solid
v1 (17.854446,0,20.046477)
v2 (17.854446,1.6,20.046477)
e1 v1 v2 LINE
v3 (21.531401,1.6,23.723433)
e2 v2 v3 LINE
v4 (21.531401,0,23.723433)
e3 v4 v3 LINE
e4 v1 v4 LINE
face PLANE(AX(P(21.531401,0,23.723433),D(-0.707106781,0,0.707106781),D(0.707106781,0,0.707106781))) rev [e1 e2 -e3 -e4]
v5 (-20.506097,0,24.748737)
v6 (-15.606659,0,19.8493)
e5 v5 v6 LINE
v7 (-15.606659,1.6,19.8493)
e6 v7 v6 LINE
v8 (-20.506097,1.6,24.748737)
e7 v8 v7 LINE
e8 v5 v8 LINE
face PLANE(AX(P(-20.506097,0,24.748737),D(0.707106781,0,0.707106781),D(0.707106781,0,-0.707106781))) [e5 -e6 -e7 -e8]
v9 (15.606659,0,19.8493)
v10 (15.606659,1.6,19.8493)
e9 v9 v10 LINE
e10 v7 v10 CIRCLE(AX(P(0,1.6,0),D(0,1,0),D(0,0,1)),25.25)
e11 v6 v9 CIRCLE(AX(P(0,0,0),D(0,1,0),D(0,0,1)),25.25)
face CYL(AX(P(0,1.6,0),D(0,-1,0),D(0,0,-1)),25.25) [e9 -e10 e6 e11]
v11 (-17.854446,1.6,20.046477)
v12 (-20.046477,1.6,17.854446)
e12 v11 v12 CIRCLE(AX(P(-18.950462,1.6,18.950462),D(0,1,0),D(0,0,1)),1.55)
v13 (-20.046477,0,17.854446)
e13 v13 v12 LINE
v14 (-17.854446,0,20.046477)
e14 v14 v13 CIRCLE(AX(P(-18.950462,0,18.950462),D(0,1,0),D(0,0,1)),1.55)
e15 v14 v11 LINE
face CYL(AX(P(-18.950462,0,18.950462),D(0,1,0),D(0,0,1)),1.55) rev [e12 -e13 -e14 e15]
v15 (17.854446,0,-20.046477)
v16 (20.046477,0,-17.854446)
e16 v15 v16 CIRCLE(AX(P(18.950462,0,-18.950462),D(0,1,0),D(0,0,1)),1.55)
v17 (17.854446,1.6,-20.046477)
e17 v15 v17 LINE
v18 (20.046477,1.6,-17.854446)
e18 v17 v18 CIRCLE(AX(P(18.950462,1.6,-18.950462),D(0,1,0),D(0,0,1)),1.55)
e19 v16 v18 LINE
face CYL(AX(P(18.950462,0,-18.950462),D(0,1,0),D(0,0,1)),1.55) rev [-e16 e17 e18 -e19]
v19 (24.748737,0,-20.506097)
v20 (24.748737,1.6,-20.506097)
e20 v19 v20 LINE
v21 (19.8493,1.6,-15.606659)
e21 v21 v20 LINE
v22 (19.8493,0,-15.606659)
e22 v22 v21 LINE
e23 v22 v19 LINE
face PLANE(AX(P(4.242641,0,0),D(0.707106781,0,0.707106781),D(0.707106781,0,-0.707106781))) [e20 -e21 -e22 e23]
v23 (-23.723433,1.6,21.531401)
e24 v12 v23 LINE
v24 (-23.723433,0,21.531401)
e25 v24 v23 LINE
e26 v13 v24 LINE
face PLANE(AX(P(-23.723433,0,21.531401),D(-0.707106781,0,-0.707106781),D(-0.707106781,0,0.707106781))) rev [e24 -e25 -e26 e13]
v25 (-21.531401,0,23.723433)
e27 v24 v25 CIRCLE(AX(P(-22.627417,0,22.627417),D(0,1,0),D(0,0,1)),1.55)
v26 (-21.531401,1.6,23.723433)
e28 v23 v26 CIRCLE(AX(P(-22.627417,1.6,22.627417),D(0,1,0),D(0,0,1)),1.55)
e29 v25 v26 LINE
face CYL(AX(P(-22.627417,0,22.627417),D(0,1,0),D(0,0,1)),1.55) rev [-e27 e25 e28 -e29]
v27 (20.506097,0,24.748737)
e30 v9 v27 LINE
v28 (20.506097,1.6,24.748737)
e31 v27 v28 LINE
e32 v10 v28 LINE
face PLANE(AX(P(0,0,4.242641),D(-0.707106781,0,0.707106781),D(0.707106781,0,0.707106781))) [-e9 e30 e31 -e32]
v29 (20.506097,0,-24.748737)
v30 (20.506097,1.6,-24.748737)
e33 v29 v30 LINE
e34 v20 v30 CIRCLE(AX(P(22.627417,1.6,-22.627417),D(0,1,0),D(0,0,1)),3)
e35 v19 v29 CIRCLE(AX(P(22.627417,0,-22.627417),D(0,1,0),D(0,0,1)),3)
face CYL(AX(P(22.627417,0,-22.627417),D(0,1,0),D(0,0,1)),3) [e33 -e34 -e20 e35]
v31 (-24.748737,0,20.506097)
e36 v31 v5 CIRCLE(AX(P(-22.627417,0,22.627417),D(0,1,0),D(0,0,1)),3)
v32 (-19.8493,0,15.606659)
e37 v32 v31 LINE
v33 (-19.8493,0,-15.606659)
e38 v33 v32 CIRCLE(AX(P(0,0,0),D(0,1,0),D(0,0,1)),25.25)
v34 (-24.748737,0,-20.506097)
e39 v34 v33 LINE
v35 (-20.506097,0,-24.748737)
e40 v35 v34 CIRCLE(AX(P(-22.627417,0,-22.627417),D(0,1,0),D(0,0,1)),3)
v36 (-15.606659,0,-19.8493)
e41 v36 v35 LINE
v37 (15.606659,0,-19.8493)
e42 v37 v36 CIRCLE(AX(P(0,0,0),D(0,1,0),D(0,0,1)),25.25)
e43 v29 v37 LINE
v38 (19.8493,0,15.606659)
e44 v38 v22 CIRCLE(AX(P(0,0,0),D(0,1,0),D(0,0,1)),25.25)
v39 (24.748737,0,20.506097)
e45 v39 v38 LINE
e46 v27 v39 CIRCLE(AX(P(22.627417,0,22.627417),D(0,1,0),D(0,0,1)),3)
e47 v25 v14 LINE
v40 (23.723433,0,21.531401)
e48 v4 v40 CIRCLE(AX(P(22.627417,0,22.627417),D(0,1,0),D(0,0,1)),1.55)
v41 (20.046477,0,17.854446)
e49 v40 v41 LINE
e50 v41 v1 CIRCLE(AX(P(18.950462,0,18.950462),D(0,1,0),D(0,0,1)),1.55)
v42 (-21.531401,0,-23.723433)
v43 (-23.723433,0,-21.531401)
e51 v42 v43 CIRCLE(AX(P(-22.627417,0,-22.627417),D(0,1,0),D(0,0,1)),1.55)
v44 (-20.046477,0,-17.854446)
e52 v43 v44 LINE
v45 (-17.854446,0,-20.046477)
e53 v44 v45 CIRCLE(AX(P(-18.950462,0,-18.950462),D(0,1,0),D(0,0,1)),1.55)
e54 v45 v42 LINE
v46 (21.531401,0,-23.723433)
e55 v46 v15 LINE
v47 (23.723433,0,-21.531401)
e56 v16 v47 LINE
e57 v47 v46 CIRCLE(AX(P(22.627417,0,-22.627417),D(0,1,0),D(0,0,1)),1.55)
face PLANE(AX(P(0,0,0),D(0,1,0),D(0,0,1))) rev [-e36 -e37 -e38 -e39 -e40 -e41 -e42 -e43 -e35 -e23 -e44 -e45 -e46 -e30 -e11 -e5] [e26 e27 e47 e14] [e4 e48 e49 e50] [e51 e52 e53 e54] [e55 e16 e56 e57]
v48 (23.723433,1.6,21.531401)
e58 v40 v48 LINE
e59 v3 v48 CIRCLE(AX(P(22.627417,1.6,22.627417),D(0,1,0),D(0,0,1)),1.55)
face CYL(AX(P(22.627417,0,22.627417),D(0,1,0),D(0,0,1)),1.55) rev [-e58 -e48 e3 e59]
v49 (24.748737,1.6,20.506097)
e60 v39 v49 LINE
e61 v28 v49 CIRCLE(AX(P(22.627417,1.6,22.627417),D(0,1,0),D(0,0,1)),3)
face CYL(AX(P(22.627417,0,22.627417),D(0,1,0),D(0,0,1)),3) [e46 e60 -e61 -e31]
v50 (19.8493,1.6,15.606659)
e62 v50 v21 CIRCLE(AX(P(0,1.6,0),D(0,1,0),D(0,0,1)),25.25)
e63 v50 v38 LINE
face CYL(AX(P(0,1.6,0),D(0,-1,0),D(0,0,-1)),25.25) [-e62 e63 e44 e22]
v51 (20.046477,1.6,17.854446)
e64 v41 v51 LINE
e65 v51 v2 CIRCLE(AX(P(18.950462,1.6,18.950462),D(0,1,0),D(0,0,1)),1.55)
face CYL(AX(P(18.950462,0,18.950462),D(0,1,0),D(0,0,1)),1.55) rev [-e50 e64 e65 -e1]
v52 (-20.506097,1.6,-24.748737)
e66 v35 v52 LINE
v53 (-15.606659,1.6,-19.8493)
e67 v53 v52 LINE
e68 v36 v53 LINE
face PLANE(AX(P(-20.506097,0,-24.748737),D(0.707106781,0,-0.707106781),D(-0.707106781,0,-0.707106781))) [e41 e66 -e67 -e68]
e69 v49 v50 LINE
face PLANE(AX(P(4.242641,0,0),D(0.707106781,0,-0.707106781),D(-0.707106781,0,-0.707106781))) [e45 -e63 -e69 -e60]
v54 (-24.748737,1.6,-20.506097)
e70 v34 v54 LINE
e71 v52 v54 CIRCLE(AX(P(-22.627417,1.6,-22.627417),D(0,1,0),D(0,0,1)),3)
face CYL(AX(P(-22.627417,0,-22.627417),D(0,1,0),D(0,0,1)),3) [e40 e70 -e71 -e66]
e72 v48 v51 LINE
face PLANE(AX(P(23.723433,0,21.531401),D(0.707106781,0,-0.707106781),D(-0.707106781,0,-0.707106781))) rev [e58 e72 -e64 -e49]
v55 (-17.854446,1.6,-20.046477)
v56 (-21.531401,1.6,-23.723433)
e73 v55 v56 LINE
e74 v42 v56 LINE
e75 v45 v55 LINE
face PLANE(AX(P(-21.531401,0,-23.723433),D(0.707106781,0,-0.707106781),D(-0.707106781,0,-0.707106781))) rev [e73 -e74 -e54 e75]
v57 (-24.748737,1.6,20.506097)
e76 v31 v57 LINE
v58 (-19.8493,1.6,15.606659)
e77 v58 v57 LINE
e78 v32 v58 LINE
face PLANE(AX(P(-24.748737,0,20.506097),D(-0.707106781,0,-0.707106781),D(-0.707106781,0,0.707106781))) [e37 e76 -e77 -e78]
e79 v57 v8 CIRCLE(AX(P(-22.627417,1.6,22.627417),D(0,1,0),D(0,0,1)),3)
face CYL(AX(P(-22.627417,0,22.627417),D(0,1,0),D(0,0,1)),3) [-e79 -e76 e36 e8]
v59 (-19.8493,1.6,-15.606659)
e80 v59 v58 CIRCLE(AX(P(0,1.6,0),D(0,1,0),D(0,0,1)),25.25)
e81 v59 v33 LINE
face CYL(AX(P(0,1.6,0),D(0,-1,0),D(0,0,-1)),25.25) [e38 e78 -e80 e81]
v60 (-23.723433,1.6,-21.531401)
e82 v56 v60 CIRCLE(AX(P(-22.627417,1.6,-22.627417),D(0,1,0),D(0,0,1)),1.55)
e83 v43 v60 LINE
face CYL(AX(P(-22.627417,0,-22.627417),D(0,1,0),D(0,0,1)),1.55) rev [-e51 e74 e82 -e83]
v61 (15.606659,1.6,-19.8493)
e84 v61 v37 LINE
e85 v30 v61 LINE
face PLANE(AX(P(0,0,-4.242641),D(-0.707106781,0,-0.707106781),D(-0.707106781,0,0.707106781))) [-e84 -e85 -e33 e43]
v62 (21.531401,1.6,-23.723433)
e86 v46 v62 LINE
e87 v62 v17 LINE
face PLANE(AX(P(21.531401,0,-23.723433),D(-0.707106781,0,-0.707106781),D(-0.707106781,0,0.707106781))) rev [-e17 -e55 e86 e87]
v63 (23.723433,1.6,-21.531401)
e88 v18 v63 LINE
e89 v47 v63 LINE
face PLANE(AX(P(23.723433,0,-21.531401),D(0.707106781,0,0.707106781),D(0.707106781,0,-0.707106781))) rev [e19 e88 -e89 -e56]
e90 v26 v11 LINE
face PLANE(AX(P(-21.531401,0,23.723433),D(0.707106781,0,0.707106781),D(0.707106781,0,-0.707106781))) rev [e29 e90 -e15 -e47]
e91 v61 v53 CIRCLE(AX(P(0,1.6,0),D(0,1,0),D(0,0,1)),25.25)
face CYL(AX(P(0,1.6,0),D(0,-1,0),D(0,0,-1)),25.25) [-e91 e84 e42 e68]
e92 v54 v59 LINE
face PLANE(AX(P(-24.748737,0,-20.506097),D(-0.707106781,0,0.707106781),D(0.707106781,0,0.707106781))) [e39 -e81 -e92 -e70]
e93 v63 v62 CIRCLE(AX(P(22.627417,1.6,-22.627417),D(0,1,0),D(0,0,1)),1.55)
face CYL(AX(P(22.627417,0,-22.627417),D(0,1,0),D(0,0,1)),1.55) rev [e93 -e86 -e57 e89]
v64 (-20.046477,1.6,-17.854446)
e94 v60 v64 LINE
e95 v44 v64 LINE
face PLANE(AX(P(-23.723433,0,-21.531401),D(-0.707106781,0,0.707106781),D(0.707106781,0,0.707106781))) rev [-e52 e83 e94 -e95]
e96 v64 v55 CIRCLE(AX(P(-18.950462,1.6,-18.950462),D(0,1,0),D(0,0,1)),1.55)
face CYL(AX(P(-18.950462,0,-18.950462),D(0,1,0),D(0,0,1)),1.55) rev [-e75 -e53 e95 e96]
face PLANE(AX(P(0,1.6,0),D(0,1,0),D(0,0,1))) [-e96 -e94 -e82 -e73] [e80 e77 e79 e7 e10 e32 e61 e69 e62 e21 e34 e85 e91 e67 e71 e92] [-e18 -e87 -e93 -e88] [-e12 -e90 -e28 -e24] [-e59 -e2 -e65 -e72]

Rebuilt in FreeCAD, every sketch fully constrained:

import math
import FreeCAD as App
import Part
import Sketcher

V = App.Vector
Q = App.Units.Quantity

doc = App.newDocument("Part")
body = doc.addObject("PartDesign::Body", "Body")

# Sketch on XZ plane
sketch1 = body.newObject("Sketcher::SketchObject", "Sketch")
sketch1.AttachmentSupport = (doc.getObject("XZ_Plane"), [""])
sketch1.MapMode = "FlatFace"
sketch1.addGeometry(Part.Circle(V(0, 0, 0), V(0, 0, 1), 25.25), False)
sketch1.addConstraint([
    Sketcher.Constraint("Coincident", 0, 3, -1, 1),
    Sketcher.Constraint("Diameter", 0, Q("50.5 mm")),
])
pad1 = body.newObject("PartDesign::Pad", "Pad")
pad1.Profile = sketch1
pad1.Length = 1.6
pad1.Reversed = True

# Sketch on XZ plane
sketch2 = body.newObject("Sketcher::SketchObject", "Sketch001")
sketch2.AttachmentSupport = (doc.getObject("XZ_Plane"), [""])
sketch2.MapMode = "FlatFace"
sketch2.AttachmentOffset = App.Placement(V(0, 0, -1.6), App.Rotation())
sketch2.addGeometry([
    Part.LineSegment(V(0, -4.242641, 0), V(-20.506097, -24.748737, 0)),  # 0
    Part.ArcOfCircle(Part.Circle(V(-22.627417, -22.627417, 0), V(0, 0, 1), 3), math.radians(135), math.radians(315)),  # 1
    Part.LineSegment(V(-24.748737, -20.506097, 0), V(-4.242641, 0, 0)),  # 2
    Part.LineSegment(V(-4.242641, 0, 0), V(-24.748737, 20.506097, 0)),  # 3
    Part.ArcOfCircle(Part.Circle(V(-22.627417, 22.627417, 0), V(0, 0, 1), 3), math.radians(45), math.radians(225)),  # 4
    Part.LineSegment(V(-20.506097, 24.748737, 0), V(0, 4.242641, 0)),  # 5
    Part.LineSegment(V(0, 4.242641, 0), V(20.506097, 24.748737, 0)),  # 6
    Part.ArcOfCircle(Part.Circle(V(22.627417, 22.627417, 0), V(0, 0, 1), 3), math.radians(-45), math.radians(135)),  # 7
    Part.LineSegment(V(24.748737, 20.506097, 0), V(4.242641, 0, 0)),  # 8
    Part.LineSegment(V(4.242641, 0, 0), V(24.748737, -20.506097, 0)),  # 9
    Part.ArcOfCircle(Part.Circle(V(22.627417, -22.627417, 0), V(0, 0, 1), 3), math.radians(-135), math.radians(45)),  # 10
    Part.LineSegment(V(20.506097, -24.748737, 0), V(0, -4.242641, 0)),  # 11
    Part.LineSegment(V(21.531401, 23.723433, 0), V(17.854446, 20.046477, 0)),  # 12
    Part.ArcOfCircle(Part.Circle(V(18.950462, 18.950462, 0), V(0, 0, 1), 1.55), math.radians(135), math.radians(315)),  # 13
    Part.LineSegment(V(20.046477, 17.854446, 0), V(23.723433, 21.531401, 0)),  # 14
    Part.ArcOfCircle(Part.Circle(V(22.627417, 22.627417, 0), V(0, 0, 1), 1.55), math.radians(-45), math.radians(135)),  # 15
    Part.LineSegment(V(-23.723433, 21.531401, 0), V(-20.046477, 17.854446, 0)),  # 16
    Part.ArcOfCircle(Part.Circle(V(-18.950462, 18.950462, 0), V(0, 0, 1), 1.55), math.radians(-135), math.radians(45)),  # 17
    Part.LineSegment(V(-17.854446, 20.046477, 0), V(-21.531401, 23.723433, 0)),  # 18
    Part.ArcOfCircle(Part.Circle(V(-22.627417, 22.627417, 0), V(0, 0, 1), 1.55), math.radians(45), math.radians(225)),  # 19
    Part.LineSegment(V(23.723433, -21.531401, 0), V(20.046477, -17.854446, 0)),  # 20
    Part.ArcOfCircle(Part.Circle(V(18.950462, -18.950462, 0), V(0, 0, 1), 1.55), math.radians(45), math.radians(225)),  # 21
    Part.LineSegment(V(17.854446, -20.046477, 0), V(21.531401, -23.723433, 0)),  # 22
    Part.ArcOfCircle(Part.Circle(V(22.627417, -22.627417, 0), V(0, 0, 1), 1.55), math.radians(-135), math.radians(45)),  # 23
    Part.LineSegment(V(-21.531401, -23.723433, 0), V(-17.854446, -20.046477, 0)),  # 24
    Part.ArcOfCircle(Part.Circle(V(-18.950462, -18.950462, 0), V(0, 0, 1), 1.55), math.radians(-45), math.radians(135)),  # 25
    Part.LineSegment(V(-20.046477, -17.854446, 0), V(-23.723433, -21.531401, 0)),  # 26
    Part.ArcOfCircle(Part.Circle(V(-22.627417, -22.627417, 0), V(0, 0, 1), 1.55), math.radians(135), math.radians(315)),  # 27
], False)
sketch2.addConstraint([
    Sketcher.Constraint("Tangent", 0, 2, 1, 2),
    Sketcher.Constraint("Tangent", 1, 1, 2, 1),
    Sketcher.Constraint("Coincident", 2, 2, 3, 1),
    Sketcher.Constraint("Tangent", 3, 2, 4, 2),
    Sketcher.Constraint("Tangent", 4, 1, 5, 1),
    Sketcher.Constraint("Coincident", 5, 2, 6, 1),
    Sketcher.Constraint("Tangent", 6, 2, 7, 2),
    Sketcher.Constraint("Tangent", 7, 1, 8, 1),
    Sketcher.Constraint("Coincident", 8, 2, 9, 1),
    Sketcher.Constraint("Tangent", 9, 2, 10, 2),
    Sketcher.Constraint("Tangent", 10, 1, 11, 1),
    Sketcher.Constraint("Coincident", 11, 2, 0, 1),
    Sketcher.Constraint("Tangent", 12, 2, 13, 1),
    Sketcher.Constraint("Tangent", 13, 2, 14, 1),
    Sketcher.Constraint("Tangent", 14, 2, 15, 1),
    Sketcher.Constraint("Tangent", 15, 2, 12, 1),
    Sketcher.Constraint("Tangent", 16, 2, 17, 1),
    Sketcher.Constraint("Tangent", 17, 2, 18, 1),
    Sketcher.Constraint("Tangent", 18, 2, 19, 1),
    Sketcher.Constraint("Tangent", 19, 2, 16, 1),
    Sketcher.Constraint("Tangent", 20, 2, 21, 1),
    Sketcher.Constraint("Tangent", 21, 2, 22, 1),
    Sketcher.Constraint("Tangent", 22, 2, 23, 1),
    Sketcher.Constraint("Tangent", 23, 2, 20, 1),
    Sketcher.Constraint("Tangent", 24, 2, 25, 1),
    Sketcher.Constraint("Tangent", 25, 2, 26, 1),
    Sketcher.Constraint("Tangent", 26, 2, 27, 1),
    Sketcher.Constraint("Tangent", 27, 2, 24, 1),
    Sketcher.Constraint("Coincident", 15, 3, 7, 3),
    Sketcher.Constraint("Coincident", 19, 3, 4, 3),
    Sketcher.Constraint("Coincident", 23, 3, 10, 3),
    Sketcher.Constraint("Coincident", 27, 3, 1, 3),
    Sketcher.Constraint("Equal", 1, 4),
    Sketcher.Constraint("Equal", 4, 7),
    Sketcher.Constraint("Equal", 7, 10),
    Sketcher.Constraint("Equal", 13, 15),
    Sketcher.Constraint("Equal", 15, 17),
    Sketcher.Constraint("Equal", 17, 19),
    Sketcher.Constraint("Equal", 19, 21),
    Sketcher.Constraint("Equal", 21, 23),
    Sketcher.Constraint("Equal", 23, 25),
    Sketcher.Constraint("Equal", 25, 27),
    Sketcher.Constraint("Symmetric", 1, 3, 7, 3, -1, 1),
    Sketcher.Constraint("Symmetric", 4, 3, 10, 3, -1, 1),
    Sketcher.Constraint("Symmetric", 17, 3, 21, 3, -1, 1),
    Sketcher.Constraint("Symmetric", 13, 3, 25, 3, -1, 1),
    Sketcher.Constraint("Symmetric", 2, 2, 8, 2, -1, 1),
    Sketcher.Constraint("Symmetric", 5, 2, 11, 2, -1, 1),
    Sketcher.Constraint("Symmetric", 4, 3, 7, 3, -2),
    Sketcher.Constraint("Symmetric", 13, 3, 17, 3, -2),
    Sketcher.Constraint("PointOnObject", 2, 2, -1),
    Sketcher.Constraint("PointOnObject", 5, 2, -2),
    Sketcher.Constraint("Parallel", 0, 2),
    Sketcher.Constraint("Perpendicular", 2, 3),
    Sketcher.Constraint("Perpendicular", 11, 12),
    Sketcher.Constraint("Equal", 0, 2),
    Sketcher.Constraint("Radius", 1, Q("3 mm")),
    Sketcher.Constraint("Radius", 13, Q("1.55 mm")),
    Sketcher.Constraint("Distance", 0, Q("29 mm")),
    Sketcher.Constraint("Distance", 12, Q("5.2 mm")),
])
pad2 = body.newObject("PartDesign::Pad", "Pad001")
pad2.Profile = sketch2
pad2.Length = 1.6

doc.recompute()
